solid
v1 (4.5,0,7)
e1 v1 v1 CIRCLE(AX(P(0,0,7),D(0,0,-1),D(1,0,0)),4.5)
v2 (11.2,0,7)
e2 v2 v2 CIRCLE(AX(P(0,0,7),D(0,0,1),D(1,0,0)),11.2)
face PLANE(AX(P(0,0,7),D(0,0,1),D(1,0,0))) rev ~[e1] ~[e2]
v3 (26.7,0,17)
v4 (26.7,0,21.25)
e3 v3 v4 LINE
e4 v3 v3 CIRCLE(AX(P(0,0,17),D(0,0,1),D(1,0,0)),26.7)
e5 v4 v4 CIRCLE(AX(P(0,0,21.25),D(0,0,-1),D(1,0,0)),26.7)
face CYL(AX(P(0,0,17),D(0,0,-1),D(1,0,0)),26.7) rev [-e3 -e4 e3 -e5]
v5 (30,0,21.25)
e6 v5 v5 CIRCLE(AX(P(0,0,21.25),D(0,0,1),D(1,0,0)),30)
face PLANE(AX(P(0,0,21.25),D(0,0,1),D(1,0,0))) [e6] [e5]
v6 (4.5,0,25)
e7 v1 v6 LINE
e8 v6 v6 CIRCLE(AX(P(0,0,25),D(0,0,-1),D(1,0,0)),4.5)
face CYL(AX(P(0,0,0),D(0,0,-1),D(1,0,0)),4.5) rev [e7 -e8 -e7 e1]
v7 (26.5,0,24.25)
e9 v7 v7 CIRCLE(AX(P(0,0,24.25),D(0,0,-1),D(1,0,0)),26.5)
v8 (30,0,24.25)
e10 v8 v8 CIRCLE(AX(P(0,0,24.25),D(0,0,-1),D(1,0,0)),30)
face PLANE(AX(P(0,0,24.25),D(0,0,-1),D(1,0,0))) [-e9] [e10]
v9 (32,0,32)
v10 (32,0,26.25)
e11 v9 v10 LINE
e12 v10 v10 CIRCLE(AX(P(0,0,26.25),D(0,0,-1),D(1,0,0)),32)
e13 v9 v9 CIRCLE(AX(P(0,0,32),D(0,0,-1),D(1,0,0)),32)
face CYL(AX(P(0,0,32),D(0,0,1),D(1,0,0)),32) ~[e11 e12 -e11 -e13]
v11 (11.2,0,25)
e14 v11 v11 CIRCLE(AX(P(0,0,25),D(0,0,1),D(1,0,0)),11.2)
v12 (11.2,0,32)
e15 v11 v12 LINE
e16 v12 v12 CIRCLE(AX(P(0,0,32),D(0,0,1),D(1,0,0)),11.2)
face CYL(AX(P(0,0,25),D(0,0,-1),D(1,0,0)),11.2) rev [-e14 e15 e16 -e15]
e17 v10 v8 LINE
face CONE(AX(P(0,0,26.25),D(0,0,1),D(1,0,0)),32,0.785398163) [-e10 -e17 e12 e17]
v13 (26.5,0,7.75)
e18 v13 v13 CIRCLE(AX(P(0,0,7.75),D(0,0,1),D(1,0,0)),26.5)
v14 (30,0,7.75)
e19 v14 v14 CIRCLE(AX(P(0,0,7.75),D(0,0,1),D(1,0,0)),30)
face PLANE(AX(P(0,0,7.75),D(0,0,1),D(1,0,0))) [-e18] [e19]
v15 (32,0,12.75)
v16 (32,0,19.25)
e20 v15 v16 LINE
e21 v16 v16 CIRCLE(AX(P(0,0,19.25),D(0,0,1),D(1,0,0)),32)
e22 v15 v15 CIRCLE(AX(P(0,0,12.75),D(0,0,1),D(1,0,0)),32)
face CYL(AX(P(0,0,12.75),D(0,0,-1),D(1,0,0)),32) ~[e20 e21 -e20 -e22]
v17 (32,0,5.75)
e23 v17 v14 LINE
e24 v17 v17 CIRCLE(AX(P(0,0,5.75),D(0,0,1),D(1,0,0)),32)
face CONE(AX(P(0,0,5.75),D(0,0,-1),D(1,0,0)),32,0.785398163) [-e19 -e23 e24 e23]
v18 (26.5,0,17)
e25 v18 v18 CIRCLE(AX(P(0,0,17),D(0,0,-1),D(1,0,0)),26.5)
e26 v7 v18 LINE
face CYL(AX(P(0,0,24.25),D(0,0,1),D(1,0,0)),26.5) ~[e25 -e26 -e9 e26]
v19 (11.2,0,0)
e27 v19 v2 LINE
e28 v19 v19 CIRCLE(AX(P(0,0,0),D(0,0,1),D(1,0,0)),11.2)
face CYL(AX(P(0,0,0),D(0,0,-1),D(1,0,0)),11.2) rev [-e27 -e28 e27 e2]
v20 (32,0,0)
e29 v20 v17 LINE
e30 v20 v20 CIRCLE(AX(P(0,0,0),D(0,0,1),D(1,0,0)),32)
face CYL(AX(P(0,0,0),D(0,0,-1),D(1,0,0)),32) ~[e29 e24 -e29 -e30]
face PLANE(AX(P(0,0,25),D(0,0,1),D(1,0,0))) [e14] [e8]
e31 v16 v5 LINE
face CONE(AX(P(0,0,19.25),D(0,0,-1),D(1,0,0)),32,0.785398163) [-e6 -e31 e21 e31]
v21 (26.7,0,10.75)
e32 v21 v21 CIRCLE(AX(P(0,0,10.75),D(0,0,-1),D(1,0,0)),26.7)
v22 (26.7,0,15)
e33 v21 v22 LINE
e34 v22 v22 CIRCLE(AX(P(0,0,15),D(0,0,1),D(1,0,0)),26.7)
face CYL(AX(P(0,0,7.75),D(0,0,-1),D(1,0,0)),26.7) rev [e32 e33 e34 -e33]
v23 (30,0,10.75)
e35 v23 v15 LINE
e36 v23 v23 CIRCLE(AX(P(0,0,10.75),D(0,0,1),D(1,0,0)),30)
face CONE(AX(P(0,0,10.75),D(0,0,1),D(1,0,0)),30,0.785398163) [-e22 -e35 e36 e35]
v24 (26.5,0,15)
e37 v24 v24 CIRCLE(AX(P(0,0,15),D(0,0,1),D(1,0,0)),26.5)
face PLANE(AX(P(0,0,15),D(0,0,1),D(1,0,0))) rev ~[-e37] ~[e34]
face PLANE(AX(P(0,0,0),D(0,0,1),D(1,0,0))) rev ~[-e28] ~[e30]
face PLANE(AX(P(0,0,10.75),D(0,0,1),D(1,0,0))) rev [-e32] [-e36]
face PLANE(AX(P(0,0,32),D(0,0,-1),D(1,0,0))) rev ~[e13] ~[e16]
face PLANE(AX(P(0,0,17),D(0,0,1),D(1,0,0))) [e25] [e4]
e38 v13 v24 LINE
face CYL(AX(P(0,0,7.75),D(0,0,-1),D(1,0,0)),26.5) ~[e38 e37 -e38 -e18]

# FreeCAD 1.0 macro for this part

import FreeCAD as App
import Part
import Sketcher


def add_polygon(sketch, points):
    """Adds a closed chain of lines whose ends are joined by coincident constraints."""
    first, n = sketch.GeometryCount, len(points)
    for a, b in zip(points, points[1:] + points[:1]):
        sketch.addGeometry(Part.LineSegment(App.Vector(*a, 0), App.Vector(*b, 0)), False)
    for i in range(n):
        sketch.addConstraint(Sketcher.Constraint("Coincident", first + i, 2, first + (i + 1) % n, 1))

doc = App.newDocument("Part")
body = doc.addObject("PartDesign::Body", "Body")

# Sketch on XY plane
sketch1 = body.newObject("Sketcher::SketchObject", "Sketch")
sketch1.AttachmentSupport = (doc.getObject("XY_Plane"), [""])
sketch1.MapMode = "FlatFace"
sketch1.AttachmentOffset = App.Placement(App.Vector(0, 0, 7.75), App.Rotation())
sketch1.addGeometry(Part.Circle(App.Vector(0, 0, 0), App.Vector(0, 0, 1), 27), False)
sketch1.addConstraint(Sketcher.Constraint("Coincident", 0, 3, -1, 1))
sketch1.addConstraint(Sketcher.Constraint("Diameter", 0, 53.4))
pad1 = body.newObject("PartDesign::Pad", "Pad")
pad1.Profile = sketch1
pad1.Length = 7.25
body2 = doc.addObject("PartDesign::Body", "Body001")

# Sketch on XY plane
sketch2 = body2.newObject("Sketcher::SketchObject", "Sketch001")
sketch2.AttachmentSupport = (doc.getObject("XY_Plane001"), [""])
sketch2.MapMode = "FlatFace"
sketch2.addGeometry(Part.Circle(App.Vector(0, 0, 0), App.Vector(0, 0, 1), 4.5), False)
sketch2.addConstraint(Sketcher.Constraint("Coincident", 0, 3, -1, 1))
sketch2.addConstraint(Sketcher.Constraint("Diameter", 0, 9.0))
pad2 = body2.newObject("PartDesign::Pad", "Pad001")
pad2.Profile = sketch2
pad2.Length = 32
body3 = doc.addObject("PartDesign::Body", "Body002")
body3.AllowCompound = True

# Sketch on XY plane
sketch3 = body3.newObject("Sketcher::SketchObject", "Sketch002")
sketch3.AttachmentSupport = (doc.getObject("XY_Plane002"), [""])
sketch3.MapMode = "FlatFace"
sketch3.AttachmentOffset = App.Placement(App.Vector(0, 0, 17), App.Rotation())
sketch3.addGeometry(Part.Circle(App.Vector(0, 0, 0), App.Vector(0, 0, 1), 27), False)
sketch3.addConstraint(Sketcher.Constraint("Coincident", 0, 3, -1, 1))
sketch3.addConstraint(Sketcher.Constraint("Diameter", 0, 53.4))
pad3 = body3.newObject("PartDesign::Pad", "Pad002")
pad3.Profile = sketch3
pad3.Length = 7.25
doc.recompute()

boolean = body3.newObject("PartDesign::Boolean", "Boolean")
boolean.Type = "Fuse"
boolean.addObjects([body])
doc.recompute()

boolean2 = body3.newObject("PartDesign::Boolean", "Boolean001")
boolean2.Type = "Fuse"
boolean2.addObjects([body2])
body4 = doc.addObject("PartDesign::Body", "Body003")

# Sketch on XZ plane
sketch4 = body4.newObject("Sketcher::SketchObject", "Sketch003")
sketch4.AttachmentSupport = (doc.getObject("XZ_Plane003"), [""])
sketch4.MapMode = "FlatFace"
add_polygon(sketch4, [(0, 8.5), (32, 8.5), (30, 10.5), (0, 10.5)])  # lines 0-3
sketch4.addConstraint(Sketcher.Constraint("Horizontal", 0))
sketch4.addConstraint(Sketcher.Constraint("Horizontal", 2))
sketch4.addConstraint(Sketcher.Constraint("Vertical", 3))
sketch4.addConstraint(Sketcher.Constraint("PointOnObject", 2, 2, -2))
sketch4.addConstraint(Sketcher.Constraint("DistanceX", 0, 1, 0, 2, 32.0))
sketch4.addConstraint(Sketcher.Constraint("DistanceX", 2, 2, 2, 1, 30.0))
sketch4.addConstraint(Sketcher.Constraint("DistanceY", 3, 2, 3, 1, 2.0))
sketch4.addConstraint(Sketcher.Constraint("DistanceY", -1, 1, 0, 2, 8.5))
revolution = body4.newObject("PartDesign::Revolution", "Revolution")
revolution.Profile = sketch4
revolution.ReferenceAxis = (sketch4, ["V_Axis"])
revolution.Angle = 360
body5 = doc.addObject("PartDesign::Body", "Body004")

# Sketch on XZ plane
sketch5 = body5.newObject("Sketcher::SketchObject", "Sketch004")
sketch5.AttachmentSupport = (doc.getObject("XZ_Plane004"), [""])
sketch5.MapMode = "FlatFace"
add_polygon(sketch5, [(0, 0), (30, 0), (32, 2), (0, 2)])  # lines 0-3
sketch5.addConstraint(Sketcher.Constraint("Horizontal", 0))
sketch5.addConstraint(Sketcher.Constraint("Horizontal", 2))
sketch5.addConstraint(Sketcher.Constraint("Vertical", 3))
sketch5.addConstraint(Sketcher.Constraint("Coincident", 3, 2, -1, 1))
sketch5.addConstraint(Sketcher.Constraint("DistanceX", 0, 1, 0, 2, 30.0))
sketch5.addConstraint(Sketcher.Constraint("DistanceX", 2, 2, 2, 1, 32.0))
sketch5.addConstraint(Sketcher.Constraint("DistanceY", 3, 2, 3, 1, 2.0))
revolution2 = body5.newObject("PartDesign::Revolution", "Revolution001")
revolution2.Profile = sketch5
revolution2.ReferenceAxis = (sketch5, ["V_Axis"])
revolution2.Angle = 360
body6 = doc.addObject("PartDesign::Body", "Body005")

# Sketch on XY plane
sketch6 = body6.newObject("Sketcher::SketchObject", "Sketch005")
sketch6.AttachmentSupport = (doc.getObject("XY_Plane005"), [""])
sketch6.MapMode = "FlatFace"
sketch6.AttachmentOffset = App.Placement(App.Vector(0, 0, 2), App.Rotation())
sketch6.addGeometry(Part.Circle(App.Vector(0, 0, 0), App.Vector(0, 0, 1), 32), False)
sketch6.addConstraint(Sketcher.Constraint("Coincident", 0, 3, -1, 1))
sketch6.addConstraint(Sketcher.Constraint("Diameter", 0, 64.0))
pad4 = body6.newObject("PartDesign::Pad", "Pad003")
pad4.Profile = sketch6
pad4.Length = 6.5
doc.recompute()

boolean3 = body6.newObject("PartDesign::Boolean", "Boolean002")
boolean3.Type = "Fuse"
boolean3.addObjects([body4])
doc.recompute()

boolean4 = body6.newObject("PartDesign::Boolean", "Boolean003")
boolean4.Type = "Fuse"
boolean4.addObjects([body5])
body7 = doc.addObject("PartDesign::Body", "Body006")
doc.recompute()

body6.Placement = App.Placement(App.Vector(0, 0, 10.75), App.Rotation(App.Vector(0, 0, 1), 0))
boolean5 = body7.newObject("PartDesign::Boolean", "Boolean004")
boolean5.Type = "Fuse"
boolean5.addObjects([body6])
doc.recompute()

boolean6 = body7.newObject("PartDesign::Boolean", "Boolean005")
boolean6.Type = "Cut"
boolean6.addObjects([body3])
body8 = doc.addObject("PartDesign::Body", "Body007")

# Sketch on XY plane
sketch7 = body8.newObject("Sketcher::SketchObject", "Sketch006")
sketch7.AttachmentSupport = (doc.getObject("XY_Plane007"), [""])
sketch7.MapMode = "FlatFace"
sketch7.addGeometry(Part.Circle(App.Vector(0, 0, 0), App.Vector(0, 0, 1), 11), False)
sketch7.addConstraint(Sketcher.Constraint("Coincident", 0, 3, -1, 1))
sketch7.addConstraint(Sketcher.Constraint("Diameter", 0, 22.4))
pad5 = body8.newObject("PartDesign::Pad", "Pad004")
pad5.Profile = sketch7
pad5.Length = 7
body9 = doc.addObject("PartDesign::Body", "Body008")

# Sketch on XY plane
sketch8 = body9.newObject("Sketcher::SketchObject", "Sketch007")
sketch8.AttachmentSupport = (doc.getObject("XY_Plane008"), [""])
sketch8.MapMode = "FlatFace"
sketch8.addGeometry(Part.Circle(App.Vector(0, 0, 0), App.Vector(0, 0, 1), 4.5), False)
sketch8.addConstraint(Sketcher.Constraint("Coincident", 0, 3, -1, 1))
sketch8.addConstraint(Sketcher.Constraint("Diameter", 0, 9.0))
pad6 = body9.newObject("PartDesign::Pad", "Pad005")
pad6.Profile = sketch8
pad6.Length = 32
body10 = doc.addObject("PartDesign::Body", "Body009")

# Sketch on XZ plane
sketch9 = body10.newObject("Sketcher::SketchObject", "Sketch008")
sketch9.AttachmentSupport = (doc.getObject("XZ_Plane009"), [""])
sketch9.MapMode = "FlatFace"
add_polygon(sketch9, [(0, 5.8), (32, 5.8), (30, 7.8), (0, 7.8)])  # lines 0-3
sketch9.addConstraint(Sketcher.Constraint("Horizontal", 0))
sketch9.addConstraint(Sketcher.Constraint("Horizontal", 2))
sketch9.addConstraint(Sketcher.Constraint("Vertical", 3))
sketch9.addConstraint(Sketcher.Constraint("PointOnObject", 2, 2, -2))
sketch9.addConstraint(Sketcher.Constraint("DistanceX", 0, 1, 0, 2, 32.0))
sketch9.addConstraint(Sketcher.Constraint("DistanceX", 2, 2, 2, 1, 30.0))
sketch9.addConstraint(Sketcher.Constraint("DistanceY", 3, 2, 3, 1, 2.0))
sketch9.addConstraint(Sketcher.Constraint("DistanceY", -1, 1, 0, 2, 5.75))
revolution3 = body10.newObject("PartDesign::Revolution", "Revolution002")
revolution3.Profile = sketch9
revolution3.ReferenceAxis = (sketch9, ["V_Axis"])
revolution3.Angle = 360
body11 = doc.addObject("PartDesign::Body", "Body010")

# Sketch on XY plane
sketch10 = body11.newObject("Sketcher::SketchObject", "Sketch009")
sketch10.AttachmentSupport = (doc.getObject("XY_Plane010"), [""])
sketch10.MapMode = "FlatFace"
sketch10.AttachmentOffset = App.Placement(App.Vector(0, 0, 7.75), App.Rotation())
sketch10.addGeometry(Part.Circle(App.Vector(0, 0, 0), App.Vector(0, 0, 1), 26), False)
sketch10.addConstraint(Sketcher.Constraint("Coincident", 0, 3, -1, 1))
sketch10.addConstraint(Sketcher.Constraint("Diameter", 0, 53.0))
pad7 = body11.newObject("PartDesign::Pad", "Pad006")
pad7.Profile = sketch10
pad7.Length = 7.25
body12 = doc.addObject("PartDesign::Body", "Body011")

# Sketch on XY plane
sketch11 = body12.newObject("Sketcher::SketchObject", "Sketch010")
sketch11.AttachmentSupport = (doc.getObject("XY_Plane011"), [""])
sketch11.MapMode = "FlatFace"
sketch11.addGeometry(Part.Circle(App.Vector(0, 0, 0), App.Vector(0, 0, 1), 32), False)
sketch11.addConstraint(Sketcher.Constraint("Coincident", 0, 3, -1, 1))
sketch11.addConstraint(Sketcher.Constraint("Diameter", 0, 64.0))
pad8 = body12.newObject("PartDesign::Pad", "Pad007")
pad8.Profile = sketch11
pad8.Length = 5.75
doc.recompute()

boolean7 = body12.newObject("PartDesign::Boolean", "Boolean006")
boolean7.Type = "Fuse"
boolean7.addObjects([body10])
doc.recompute()

boolean8 = body12.newObject("PartDesign::Boolean", "Boolean007")
boolean8.Type = "Fuse"
boolean8.addObjects([body11])
doc.recompute()

boolean9 = body12.newObject("PartDesign::Boolean", "Boolean008")
boolean9.Type = "Cut"
boolean9.addObjects([body9])
doc.recompute()

boolean10 = body12.newObject("PartDesign::Boolean", "Boolean009")
boolean10.Type = "Cut"
boolean10.addObjects([body8])
body13 = doc.addObject("PartDesign::Body", "Body012")

# Sketch on XY plane
sketch12 = body13.newObject("Sketcher::SketchObject", "Sketch011")
sketch12.AttachmentSupport = (doc.getObject("XY_Plane012"), [""])
sketch12.MapMode = "FlatFace"
sketch12.AttachmentOffset = App.Placement(App.Vector(0, 0, 25), App.Rotation())
sketch12.addGeometry(Part.Circle(App.Vector(0, 0, 0), App.Vector(0, 0, 1), 11), False)
sketch12.addConstraint(Sketcher.Constraint("Coincident", 0, 3, -1, 1))
sketch12.addConstraint(Sketcher.Constraint("Diameter", 0, 22.4))
pad9 = body13.newObject("PartDesign::Pad", "Pad008")
pad9.Profile = sketch12
pad9.Length = 7
body14 = doc.addObject("PartDesign::Body", "Body013")

# Sketch on XY plane
sketch13 = body14.newObject("Sketcher::SketchObject", "Sketch012")
sketch13.AttachmentSupport = (doc.getObject("XY_Plane013"), [""])
sketch13.MapMode = "FlatFace"
sketch13.addGeometry(Part.Circle(App.Vector(0, 0, 0), App.Vector(0, 0, 1), 4.5), False)
sketch13.addConstraint(Sketcher.Constraint("Coincident", 0, 3, -1, 1))
sketch13.addConstraint(Sketcher.Constraint("Diameter", 0, 9.0))
pad10 = body14.newObject("PartDesign::Pad", "Pad009")
pad10.Profile = sketch13
pad10.Length = 32
body15 = doc.addObject("PartDesign::Body", "Body014")

# Sketch on XZ plane
sketch14 = body15.newObject("Sketcher::SketchObject", "Sketch013")
sketch14.AttachmentSupport = (doc.getObject("XZ_Plane014"), [""])
sketch14.MapMode = "FlatFace"
add_polygon(sketch14, [(0, 5.8), (32, 5.8), (30, 7.8), (0, 7.8)])  # lines 0-3
sketch14.addConstraint(Sketcher.Constraint("Horizontal", 0))
sketch14.addConstraint(Sketcher.Constraint("Horizontal", 2))
sketch14.addConstraint(Sketcher.Constraint("Vertical", 3))
sketch14.addConstraint(Sketcher.Constraint("PointOnObject", 2, 2, -2))
sketch14.addConstraint(Sketcher.Constraint("DistanceX", 0, 1, 0, 2, 32.0))
sketch14.addConstraint(Sketcher.Constraint("DistanceX", 2, 2, 2, 1, 30.0))
sketch14.addConstraint(Sketcher.Constraint("DistanceY", 3, 2, 3, 1, 2.0))
sketch14.addConstraint(Sketcher.Constraint("DistanceY", -1, 1, 0, 2, 5.75))
revolution4 = body15.newObject("PartDesign::Revolution", "Revolution003")
revolution4.Profile = sketch14
revolution4.ReferenceAxis = (sketch14, ["V_Axis"])
revolution4.Angle = 360
body16 = doc.addObject("PartDesign::Body", "Body015")

# Sketch on XY plane
sketch15 = body16.newObject("Sketcher::SketchObject", "Sketch014")
sketch15.AttachmentSupport = (doc.getObject("XY_Plane015"), [""])
sketch15.MapMode = "FlatFace"
sketch15.AttachmentOffset = App.Placement(App.Vector(0, 0, 7.75), App.Rotation())
sketch15.addGeometry(Part.Circle(App.Vector(0, 0, 0), App.Vector(0, 0, 1), 26), False)
sketch15.addConstraint(Sketcher.Constraint("Coincident", 0, 3, -1, 1))
sketch15.addConstraint(Sketcher.Constraint("Diameter", 0, 53.0))
pad11 = body16.newObject("PartDesign::Pad", "Pad010")
pad11.Profile = sketch15
pad11.Length = 7.25
body17 = doc.addObject("PartDesign::Body", "Body016")

# Sketch on XY plane
sketch16 = body17.newObject("Sketcher::SketchObject", "Sketch015")
sketch16.AttachmentSupport = (doc.getObject("XY_Plane016"), [""])
sketch16.MapMode = "FlatFace"
sketch16.addGeometry(Part.Circle(App.Vector(0, 0, 0), App.Vector(0, 0, 1), 32), False)
sketch16.addConstraint(Sketcher.Constraint("Coincident", 0, 3, -1, 1))
sketch16.addConstraint(Sketcher.Constraint("Diameter", 0, 64.0))
pad12 = body17.newObject("PartDesign::Pad", "Pad011")
pad12.Profile = sketch16
pad12.Length = 5.75
doc.recompute()

boolean11 = body17.newObject("PartDesign::Boolean", "Boolean010")
boolean11.Type = "Fuse"
boolean11.addObjects([body15])
doc.recompute()

boolean12 = body17.newObject("PartDesign::Boolean", "Boolean011")
boolean12.Type = "Fuse"
boolean12.addObjects([body16])
body18 = doc.addObject("PartDesign::Body", "Body017")
doc.recompute()

body17.Placement = App.Placement(App.Vector(0, 0, 32), App.Rotation(App.Vector(1, 0, 0), 180))
boolean13 = body18.newObject("PartDesign::Boolean", "Boolean012")
boolean13.Type = "Fuse"
boolean13.addObjects([body17])
doc.recompute()

boolean14 = body18.newObject("PartDesign::Boolean", "Boolean013")
boolean14.Type = "Cut"
boolean14.addObjects([body14])
doc.recompute()

boolean15 = body18.newObject("PartDesign::Boolean", "Boolean014")
boolean15.Type = "Cut"
boolean15.addObjects([body13])
doc.recompute()

boolean16 = body18.newObject("PartDesign::Boolean", "Boolean015")
boolean16.Type = "Fuse"
boolean16.addObjects([body7])
doc.recompute()

boolean17 = body18.newObject("PartDesign::Boolean", "Boolean016")
boolean17.Type = "Fuse"
boolean17.addObjects([body12])

doc.recompute()
